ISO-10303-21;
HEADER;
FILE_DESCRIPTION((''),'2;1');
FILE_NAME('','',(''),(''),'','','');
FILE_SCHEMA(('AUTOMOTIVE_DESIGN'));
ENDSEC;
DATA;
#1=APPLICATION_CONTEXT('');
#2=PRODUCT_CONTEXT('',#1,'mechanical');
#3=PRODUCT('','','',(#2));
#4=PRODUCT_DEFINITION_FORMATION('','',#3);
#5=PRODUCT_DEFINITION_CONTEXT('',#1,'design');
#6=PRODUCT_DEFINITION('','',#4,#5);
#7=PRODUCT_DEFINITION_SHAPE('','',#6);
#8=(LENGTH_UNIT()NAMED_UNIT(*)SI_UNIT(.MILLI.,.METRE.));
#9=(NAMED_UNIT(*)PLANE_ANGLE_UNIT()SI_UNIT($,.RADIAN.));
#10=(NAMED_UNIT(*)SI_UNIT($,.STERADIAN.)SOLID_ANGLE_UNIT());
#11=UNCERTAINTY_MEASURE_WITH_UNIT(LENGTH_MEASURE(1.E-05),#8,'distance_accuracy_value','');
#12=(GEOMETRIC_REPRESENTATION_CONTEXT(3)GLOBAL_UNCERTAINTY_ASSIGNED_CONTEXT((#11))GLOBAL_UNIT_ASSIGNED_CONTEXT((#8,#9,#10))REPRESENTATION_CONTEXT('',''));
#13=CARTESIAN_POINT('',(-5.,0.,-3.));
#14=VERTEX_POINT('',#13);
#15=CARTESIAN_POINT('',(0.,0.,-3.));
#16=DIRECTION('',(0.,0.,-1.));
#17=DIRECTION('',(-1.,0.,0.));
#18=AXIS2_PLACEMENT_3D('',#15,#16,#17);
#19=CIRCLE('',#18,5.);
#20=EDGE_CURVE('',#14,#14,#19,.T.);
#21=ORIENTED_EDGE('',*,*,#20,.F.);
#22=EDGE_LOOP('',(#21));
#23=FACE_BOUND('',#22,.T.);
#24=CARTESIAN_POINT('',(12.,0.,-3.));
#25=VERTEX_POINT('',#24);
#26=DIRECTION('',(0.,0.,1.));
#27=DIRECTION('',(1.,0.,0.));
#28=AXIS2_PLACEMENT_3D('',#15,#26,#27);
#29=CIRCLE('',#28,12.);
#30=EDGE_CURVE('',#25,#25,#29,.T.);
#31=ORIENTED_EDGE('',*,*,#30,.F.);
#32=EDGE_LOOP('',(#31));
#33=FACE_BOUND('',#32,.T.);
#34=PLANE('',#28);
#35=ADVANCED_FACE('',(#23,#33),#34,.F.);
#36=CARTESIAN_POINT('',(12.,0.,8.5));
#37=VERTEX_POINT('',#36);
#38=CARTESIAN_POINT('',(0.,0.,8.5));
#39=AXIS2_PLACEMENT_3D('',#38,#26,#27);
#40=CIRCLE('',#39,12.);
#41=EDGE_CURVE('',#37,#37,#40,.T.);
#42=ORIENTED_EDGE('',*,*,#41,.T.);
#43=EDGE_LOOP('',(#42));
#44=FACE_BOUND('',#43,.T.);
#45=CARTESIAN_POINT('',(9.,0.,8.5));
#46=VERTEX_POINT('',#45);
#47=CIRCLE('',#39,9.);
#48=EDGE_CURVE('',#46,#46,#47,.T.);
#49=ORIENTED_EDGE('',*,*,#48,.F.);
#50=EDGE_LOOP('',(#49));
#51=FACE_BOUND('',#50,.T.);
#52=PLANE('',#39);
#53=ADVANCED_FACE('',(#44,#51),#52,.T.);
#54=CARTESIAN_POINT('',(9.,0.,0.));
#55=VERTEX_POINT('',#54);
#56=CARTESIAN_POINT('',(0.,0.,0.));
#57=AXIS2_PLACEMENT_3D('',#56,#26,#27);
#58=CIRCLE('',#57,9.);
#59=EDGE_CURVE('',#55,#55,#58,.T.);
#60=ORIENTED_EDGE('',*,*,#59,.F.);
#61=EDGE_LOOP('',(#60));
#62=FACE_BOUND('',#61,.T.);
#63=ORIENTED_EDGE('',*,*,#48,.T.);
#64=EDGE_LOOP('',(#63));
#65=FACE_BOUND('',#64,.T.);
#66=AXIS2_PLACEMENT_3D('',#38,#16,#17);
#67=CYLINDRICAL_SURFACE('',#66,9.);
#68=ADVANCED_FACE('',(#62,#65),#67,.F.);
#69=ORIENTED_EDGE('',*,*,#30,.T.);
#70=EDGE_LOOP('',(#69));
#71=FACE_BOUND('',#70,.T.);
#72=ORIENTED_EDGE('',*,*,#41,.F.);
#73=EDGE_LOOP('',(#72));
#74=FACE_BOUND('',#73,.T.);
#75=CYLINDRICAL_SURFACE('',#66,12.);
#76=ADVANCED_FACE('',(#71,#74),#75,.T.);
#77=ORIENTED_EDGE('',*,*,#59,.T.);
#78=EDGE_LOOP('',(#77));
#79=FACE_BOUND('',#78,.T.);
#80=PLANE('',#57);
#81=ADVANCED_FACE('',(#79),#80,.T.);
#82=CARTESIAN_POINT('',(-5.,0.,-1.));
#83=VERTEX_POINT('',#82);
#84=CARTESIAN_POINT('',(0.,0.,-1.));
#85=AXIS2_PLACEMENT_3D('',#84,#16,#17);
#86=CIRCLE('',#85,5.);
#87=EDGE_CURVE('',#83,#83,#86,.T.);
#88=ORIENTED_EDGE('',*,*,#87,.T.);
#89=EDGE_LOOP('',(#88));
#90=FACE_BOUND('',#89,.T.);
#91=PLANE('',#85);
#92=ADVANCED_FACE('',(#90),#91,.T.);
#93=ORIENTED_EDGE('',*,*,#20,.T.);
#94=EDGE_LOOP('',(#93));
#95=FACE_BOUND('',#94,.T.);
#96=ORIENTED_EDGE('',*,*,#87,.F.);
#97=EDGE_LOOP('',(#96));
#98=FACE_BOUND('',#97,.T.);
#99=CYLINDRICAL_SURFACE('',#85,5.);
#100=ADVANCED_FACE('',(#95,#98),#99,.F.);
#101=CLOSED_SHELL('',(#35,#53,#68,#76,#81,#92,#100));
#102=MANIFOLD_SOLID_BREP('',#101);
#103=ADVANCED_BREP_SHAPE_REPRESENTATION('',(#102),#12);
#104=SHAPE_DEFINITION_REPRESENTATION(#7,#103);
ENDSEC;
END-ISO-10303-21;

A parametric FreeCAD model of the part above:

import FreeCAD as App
import Part
import Sketcher
from FreeCAD import Vector

doc = App.newDocument("Part")
body = doc.addObject("PartDesign::Body", "Body")

# Sketch on XY plane
sketch1 = body.newObject("Sketcher::SketchObject", "Sketch")
sketch1.AttachmentSupport = (doc.getObject("XY_Plane"), [""])
sketch1.MapMode = "FlatFace"
sketch1.addGeometry([
    Part.Circle(Vector(0, 0, 0), Vector(0, 0, 1), 12),
    Part.Circle(Vector(0, 0, 0), Vector(0, 0, 1), 9),
], False)
sketch1.addConstraint([
    Sketcher.Constraint("Coincident", 0, 3, -1, 1),
    Sketcher.Constraint("Coincident", 1, 3, -1, 1),
    Sketcher.Constraint("Diameter", 0, 24.0),
    Sketcher.Constraint("Diameter", 1, 18.0),
])
pad1 = body.newObject("PartDesign::Pad", "Pad")
pad1.Profile = sketch1
pad1.Length = 8.5

# Sketch on XY plane
sketch2 = body.newObject("Sketcher::SketchObject", "Sketch001")
sketch2.AttachmentSupport = (doc.getObject("XY_Plane"), [""])
sketch2.MapMode = "FlatFace"
sketch2.addGeometry(Part.Circle(Vector(0, 0, 0), Vector(0, 0, 1), 12), False)
sketch2.addConstraint([
    Sketcher.Constraint("Coincident", 0, 3, -1, 1),
    Sketcher.Constraint("Diameter", 0, 24.0),
])
pad2 = body.newObject("PartDesign::Pad", "Pad001")
pad2.Profile = sketch2
pad2.Length = 3
pad2.Reversed = True

# Sketch on XY plane
sketch3 = body.newObject("Sketcher::SketchObject", "Sketch002")
sketch3.AttachmentSupport = (doc.getObject("XY_Plane"), [""])
sketch3.MapMode = "FlatFace"
sketch3.AttachmentOffset = App.Placement(Vector(0, 0, -3), App.Rotation())
sketch3.addGeometry(Part.Circle(Vector(0, 0, 0), Vector(0, 0, 1), 5), False)
sketch3.addConstraint([
    Sketcher.Constraint("Coincident", 0, 3, -1, 1),
    Sketcher.Constraint("Diameter", 0, 10.0),
])
pocket1 = body.newObject("PartDesign::Pocket", "Pocket")
pocket1.Profile = sketch3
pocket1.Length = 2
pocket1.Reversed = True

doc.recompute()
